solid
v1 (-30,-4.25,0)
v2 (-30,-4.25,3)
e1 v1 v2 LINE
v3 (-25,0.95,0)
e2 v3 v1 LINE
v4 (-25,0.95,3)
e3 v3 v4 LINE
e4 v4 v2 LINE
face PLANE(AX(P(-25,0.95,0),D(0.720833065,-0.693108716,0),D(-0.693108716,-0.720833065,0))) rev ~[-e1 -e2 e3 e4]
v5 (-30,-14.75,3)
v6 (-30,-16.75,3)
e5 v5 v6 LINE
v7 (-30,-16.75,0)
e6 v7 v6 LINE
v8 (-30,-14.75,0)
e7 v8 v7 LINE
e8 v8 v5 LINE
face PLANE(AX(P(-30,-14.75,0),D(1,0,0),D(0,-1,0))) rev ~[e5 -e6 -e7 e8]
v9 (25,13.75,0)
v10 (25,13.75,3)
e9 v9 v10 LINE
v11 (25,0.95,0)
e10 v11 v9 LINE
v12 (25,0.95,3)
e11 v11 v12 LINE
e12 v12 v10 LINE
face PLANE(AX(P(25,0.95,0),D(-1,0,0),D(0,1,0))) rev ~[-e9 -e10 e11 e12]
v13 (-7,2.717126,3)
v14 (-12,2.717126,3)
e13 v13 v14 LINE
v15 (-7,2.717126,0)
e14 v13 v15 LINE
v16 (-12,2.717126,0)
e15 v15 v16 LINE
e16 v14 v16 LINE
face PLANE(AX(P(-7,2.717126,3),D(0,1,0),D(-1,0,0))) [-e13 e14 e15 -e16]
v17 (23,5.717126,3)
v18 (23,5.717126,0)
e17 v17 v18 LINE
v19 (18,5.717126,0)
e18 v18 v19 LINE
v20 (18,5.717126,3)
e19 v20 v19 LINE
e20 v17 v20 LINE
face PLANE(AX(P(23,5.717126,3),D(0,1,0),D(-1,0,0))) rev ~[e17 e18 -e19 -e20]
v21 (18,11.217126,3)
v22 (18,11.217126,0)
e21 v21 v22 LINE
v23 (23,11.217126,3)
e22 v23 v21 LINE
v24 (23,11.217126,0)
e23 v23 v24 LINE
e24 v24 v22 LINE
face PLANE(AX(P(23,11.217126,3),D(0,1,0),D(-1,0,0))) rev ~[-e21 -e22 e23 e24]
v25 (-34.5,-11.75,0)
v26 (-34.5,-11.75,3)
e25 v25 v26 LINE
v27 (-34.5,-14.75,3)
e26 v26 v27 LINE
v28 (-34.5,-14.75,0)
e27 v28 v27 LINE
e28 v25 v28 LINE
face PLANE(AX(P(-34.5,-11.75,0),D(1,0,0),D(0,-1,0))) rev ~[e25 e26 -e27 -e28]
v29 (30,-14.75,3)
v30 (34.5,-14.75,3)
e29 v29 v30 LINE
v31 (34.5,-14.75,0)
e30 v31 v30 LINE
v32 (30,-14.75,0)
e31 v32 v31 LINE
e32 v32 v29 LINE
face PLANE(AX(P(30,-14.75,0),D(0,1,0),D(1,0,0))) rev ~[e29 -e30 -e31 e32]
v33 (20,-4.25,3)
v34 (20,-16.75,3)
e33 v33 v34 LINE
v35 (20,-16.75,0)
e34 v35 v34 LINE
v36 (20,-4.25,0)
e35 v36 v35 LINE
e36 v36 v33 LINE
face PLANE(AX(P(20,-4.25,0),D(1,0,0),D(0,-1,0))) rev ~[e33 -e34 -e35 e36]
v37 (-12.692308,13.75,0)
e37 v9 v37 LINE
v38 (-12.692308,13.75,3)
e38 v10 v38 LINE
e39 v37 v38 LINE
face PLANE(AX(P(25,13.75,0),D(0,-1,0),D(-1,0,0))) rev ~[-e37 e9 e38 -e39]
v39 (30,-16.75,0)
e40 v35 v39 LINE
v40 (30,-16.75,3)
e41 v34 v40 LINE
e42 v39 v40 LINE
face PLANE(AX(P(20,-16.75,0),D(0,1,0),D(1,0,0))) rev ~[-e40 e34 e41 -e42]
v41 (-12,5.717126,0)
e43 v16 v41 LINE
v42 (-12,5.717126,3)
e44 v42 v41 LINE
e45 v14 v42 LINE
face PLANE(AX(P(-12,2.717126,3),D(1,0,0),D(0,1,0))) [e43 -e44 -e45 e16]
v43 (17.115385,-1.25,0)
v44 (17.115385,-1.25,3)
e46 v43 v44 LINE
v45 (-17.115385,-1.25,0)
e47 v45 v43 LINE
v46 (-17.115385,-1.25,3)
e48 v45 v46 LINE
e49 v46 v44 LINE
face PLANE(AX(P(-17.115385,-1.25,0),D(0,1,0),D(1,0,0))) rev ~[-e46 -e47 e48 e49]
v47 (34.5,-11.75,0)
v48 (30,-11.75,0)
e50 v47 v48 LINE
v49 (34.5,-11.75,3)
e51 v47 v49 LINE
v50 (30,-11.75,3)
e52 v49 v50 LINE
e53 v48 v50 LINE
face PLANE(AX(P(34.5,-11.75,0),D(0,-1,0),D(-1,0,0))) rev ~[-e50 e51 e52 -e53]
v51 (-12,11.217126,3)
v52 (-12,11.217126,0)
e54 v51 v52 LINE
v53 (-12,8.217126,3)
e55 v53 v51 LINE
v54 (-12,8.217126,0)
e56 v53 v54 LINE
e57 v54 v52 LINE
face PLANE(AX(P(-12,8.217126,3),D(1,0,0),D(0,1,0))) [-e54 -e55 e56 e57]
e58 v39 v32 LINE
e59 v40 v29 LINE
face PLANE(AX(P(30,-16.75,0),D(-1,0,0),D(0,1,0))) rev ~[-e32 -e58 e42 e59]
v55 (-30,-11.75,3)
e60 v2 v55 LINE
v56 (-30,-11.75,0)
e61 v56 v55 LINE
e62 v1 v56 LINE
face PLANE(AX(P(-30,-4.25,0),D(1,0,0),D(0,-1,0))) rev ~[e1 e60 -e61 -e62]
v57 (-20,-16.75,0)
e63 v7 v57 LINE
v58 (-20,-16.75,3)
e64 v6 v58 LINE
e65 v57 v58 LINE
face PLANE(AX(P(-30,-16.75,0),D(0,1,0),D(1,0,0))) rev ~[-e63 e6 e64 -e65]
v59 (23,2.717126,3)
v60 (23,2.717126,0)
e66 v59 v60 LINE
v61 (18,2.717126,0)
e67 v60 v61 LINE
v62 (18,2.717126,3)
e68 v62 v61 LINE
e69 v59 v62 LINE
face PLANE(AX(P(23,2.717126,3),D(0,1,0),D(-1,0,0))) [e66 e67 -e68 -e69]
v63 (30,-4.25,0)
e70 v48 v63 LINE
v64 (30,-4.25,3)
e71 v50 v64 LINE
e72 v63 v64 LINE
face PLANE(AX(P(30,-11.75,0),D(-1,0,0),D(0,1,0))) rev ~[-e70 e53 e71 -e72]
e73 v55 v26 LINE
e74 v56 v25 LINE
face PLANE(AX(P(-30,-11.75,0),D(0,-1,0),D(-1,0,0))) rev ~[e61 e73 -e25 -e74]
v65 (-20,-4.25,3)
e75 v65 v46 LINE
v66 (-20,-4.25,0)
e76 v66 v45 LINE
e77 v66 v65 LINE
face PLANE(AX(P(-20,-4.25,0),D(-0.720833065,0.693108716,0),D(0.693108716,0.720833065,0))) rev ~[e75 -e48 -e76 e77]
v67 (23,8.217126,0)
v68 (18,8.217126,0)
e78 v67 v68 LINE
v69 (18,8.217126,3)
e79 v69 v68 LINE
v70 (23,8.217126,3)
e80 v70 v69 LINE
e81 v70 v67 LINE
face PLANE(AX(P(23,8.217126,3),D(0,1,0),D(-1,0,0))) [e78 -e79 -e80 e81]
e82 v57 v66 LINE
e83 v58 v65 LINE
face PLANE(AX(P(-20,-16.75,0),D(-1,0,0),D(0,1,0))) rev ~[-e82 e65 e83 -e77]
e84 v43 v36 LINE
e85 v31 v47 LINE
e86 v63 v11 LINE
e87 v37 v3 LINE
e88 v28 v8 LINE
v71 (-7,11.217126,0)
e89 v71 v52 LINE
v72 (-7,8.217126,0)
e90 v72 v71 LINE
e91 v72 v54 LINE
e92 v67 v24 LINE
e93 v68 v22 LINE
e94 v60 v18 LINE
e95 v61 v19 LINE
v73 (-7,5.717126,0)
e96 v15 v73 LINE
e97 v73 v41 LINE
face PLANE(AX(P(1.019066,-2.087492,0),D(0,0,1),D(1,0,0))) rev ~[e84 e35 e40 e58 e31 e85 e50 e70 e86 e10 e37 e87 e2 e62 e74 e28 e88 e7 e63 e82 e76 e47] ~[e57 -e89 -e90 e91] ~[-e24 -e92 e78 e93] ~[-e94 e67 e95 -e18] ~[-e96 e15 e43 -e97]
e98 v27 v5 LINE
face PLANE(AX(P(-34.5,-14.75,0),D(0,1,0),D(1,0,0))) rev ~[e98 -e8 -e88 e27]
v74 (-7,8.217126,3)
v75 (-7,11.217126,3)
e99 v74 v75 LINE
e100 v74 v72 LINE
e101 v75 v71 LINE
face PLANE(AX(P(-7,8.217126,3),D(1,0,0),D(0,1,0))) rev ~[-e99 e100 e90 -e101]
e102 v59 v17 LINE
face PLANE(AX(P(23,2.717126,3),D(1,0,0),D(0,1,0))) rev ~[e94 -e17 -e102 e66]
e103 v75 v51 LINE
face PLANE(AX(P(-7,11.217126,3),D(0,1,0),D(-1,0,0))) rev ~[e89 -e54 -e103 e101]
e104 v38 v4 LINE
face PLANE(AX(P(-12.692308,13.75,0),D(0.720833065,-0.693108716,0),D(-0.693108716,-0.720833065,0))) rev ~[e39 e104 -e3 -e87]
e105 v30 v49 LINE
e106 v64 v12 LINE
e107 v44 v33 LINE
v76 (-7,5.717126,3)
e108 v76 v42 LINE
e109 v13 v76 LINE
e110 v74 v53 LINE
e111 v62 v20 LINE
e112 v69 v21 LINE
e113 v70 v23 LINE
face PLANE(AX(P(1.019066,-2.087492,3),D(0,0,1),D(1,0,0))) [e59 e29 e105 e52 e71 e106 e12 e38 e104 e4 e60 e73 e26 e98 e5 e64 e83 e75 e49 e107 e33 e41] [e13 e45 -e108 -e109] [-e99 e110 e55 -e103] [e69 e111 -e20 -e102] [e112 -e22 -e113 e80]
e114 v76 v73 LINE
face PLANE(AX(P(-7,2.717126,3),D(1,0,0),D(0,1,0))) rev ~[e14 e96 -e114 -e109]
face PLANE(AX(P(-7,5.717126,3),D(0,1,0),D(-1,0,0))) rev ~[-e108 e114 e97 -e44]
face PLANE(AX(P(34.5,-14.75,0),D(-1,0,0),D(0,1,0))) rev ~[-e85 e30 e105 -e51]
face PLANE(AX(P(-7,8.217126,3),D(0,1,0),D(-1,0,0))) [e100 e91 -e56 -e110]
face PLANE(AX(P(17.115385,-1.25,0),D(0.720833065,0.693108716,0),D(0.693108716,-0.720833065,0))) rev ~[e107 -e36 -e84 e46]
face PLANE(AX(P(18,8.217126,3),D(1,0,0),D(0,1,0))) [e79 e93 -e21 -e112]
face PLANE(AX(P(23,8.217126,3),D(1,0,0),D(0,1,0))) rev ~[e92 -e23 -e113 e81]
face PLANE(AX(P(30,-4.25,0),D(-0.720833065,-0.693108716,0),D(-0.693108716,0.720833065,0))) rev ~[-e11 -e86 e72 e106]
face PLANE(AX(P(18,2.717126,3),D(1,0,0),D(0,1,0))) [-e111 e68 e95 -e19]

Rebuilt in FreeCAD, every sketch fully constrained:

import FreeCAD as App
import Part
import Sketcher

V = App.Vector


def add_polygon(sketch, points):
    """Adds a closed chain of lines whose ends are joined by coincident constraints."""
    first, n = sketch.GeometryCount, len(points)
    for a, b in zip(points, points[1:] + points[:1]):
        sketch.addGeometry(Part.LineSegment(App.Vector(*a, 0), App.Vector(*b, 0)), False)
    for i in range(n):
        sketch.addConstraint(Sketcher.Constraint("Coincident", first + i, 2, first + (i + 1) % n, 1))

doc = App.newDocument("Part")
body = doc.addObject("PartDesign::Body", "Body")

# Sketch on XY plane
sketch1 = body.newObject("Sketcher::SketchObject", "Sketch")
sketch1.AttachmentSupport = (doc.getObject("XY_Plane"), [""])
sketch1.MapMode = "FlatFace"
add_polygon(sketch1, [(30, -11.8), (30, -4.2), (25, 0.9), (25, 13.8), (-12.7, 13.8), (-25, 0.9), (-30, -4.2), (-30, -11.8), (-34.5, -11.8), (-34.5, -14.8), (-30, -14.8), (-30, -16.8), (-20, -16.8), (-20, -4.2), (-17.1, -1.2), (17.1, -1.2), (20, -4.2), (20, -16.8), (30, -16.8), (30, -14.8), (34.5, -14.8), (34.5, -11.8)])  # lines 0-21
sketch1.addConstraint([
    Sketcher.Constraint("Vertical", 0),
    Sketcher.Constraint("Vertical", 2),
    Sketcher.Constraint("Horizontal", 3),
    Sketcher.Constraint("Vertical", 6),
    Sketcher.Constraint("Horizontal", 7),
    Sketcher.Constraint("Vertical", 8),
    Sketcher.Constraint("Horizontal", 9),
    Sketcher.Constraint("Vertical", 10),
    Sketcher.Constraint("Horizontal", 11),
    Sketcher.Constraint("Vertical", 12),
    Sketcher.Constraint("Horizontal", 14),
    Sketcher.Constraint("Vertical", 16),
    Sketcher.Constraint("Horizontal", 17),
    Sketcher.Constraint("Vertical", 18),
    Sketcher.Constraint("Horizontal", 19),
    Sketcher.Constraint("Vertical", 20),
    Sketcher.Constraint("Horizontal", 21),
    Sketcher.Constraint("Symmetric", 1, 2, 4, 2, -2),
    Sketcher.Constraint("Symmetric", 0, 2, 5, 2, -2),
    Sketcher.Constraint("Symmetric", 12, 2, 15, 2, -2),
    Sketcher.Constraint("Symmetric", 10, 2, 17, 2, -2),
    Sketcher.Constraint("Symmetric", 8, 2, 19, 2, -2),
    Sketcher.Constraint("Parallel", 4, 5),
    Sketcher.Constraint("Parallel", 5, 13),
    Sketcher.Constraint("Parallel", 1, 15),
    Sketcher.Constraint("Horizontal", 5, 2, 12, 2),
    Sketcher.Constraint("Horizontal", 7, 2, 20, 2),
    Sketcher.Constraint("Vertical", 6, 2, 9, 2),
    Sketcher.Constraint("DistanceX", 11, 1, 11, 2, 10.0),
    Sketcher.Constraint("DistanceY", 8, 2, 8, 1, 3.0),
    Sketcher.Constraint("DistanceY", 10, 2, 10, 1, 2.0),
    Sketcher.Constraint("DistanceX", 7, 2, 7, 1, 4.5),
    Sketcher.Constraint("DistanceY", 0, 1, 0, 2, 7.5),
    Sketcher.Constraint("DistanceY", 2, 1, 2, 2, 12.8),
    Sketcher.Constraint("DistanceX", -1, 1, 0, 2, 30.0),
    Sketcher.Constraint("DistanceX", -1, 1, 1, 2, 25.0),
    Sketcher.Constraint("DistanceY", 0, 2, 2, 2, 18.0),
    Sketcher.Constraint("DistanceY", 12, 2, 13, 2, 3.0),
    Sketcher.Constraint("DistanceY", 0, 2, -1, 1, 4.25),
])
pad1 = body.newObject("PartDesign::Pad", "Pad")
pad1.Profile = sketch1
pad1.Length = 3

# Sketch on XY plane
sketch2 = body.newObject("Sketcher::SketchObject", "Sketch001")
sketch2.AttachmentSupport = (doc.getObject("XY_Plane"), [""])
sketch2.MapMode = "FlatFace"
sketch2.AttachmentOffset = App.Placement(V(0, 0, 3), App.Rotation())
add_polygon(sketch2, [(-7, 5.7), (-7, 2.7), (-12, 2.7), (-12, 5.7)])  # lines 0-3
add_polygon(sketch2, [(-7, 11.2), (-7, 8.2), (-12, 8.2), (-12, 11.2)])  # lines 4-7
add_polygon(sketch2, [(23, 5.7), (23, 2.7), (18, 2.7), (18, 5.7)])  # lines 8-11
add_polygon(sketch2, [(23, 11.2), (23, 8.2), (18, 8.2), (18, 11.2)])  # lines 12-15
sketch2.addConstraint([
    Sketcher.Constraint("Vertical", 0),
    Sketcher.Constraint("Horizontal", 1),
    Sketcher.Constraint("Vertical", 2),
    Sketcher.Constraint("Horizontal", 3),
    Sketcher.Constraint("Vertical", 4),
    Sketcher.Constraint("Horizontal", 5),
    Sketcher.Constraint("Vertical", 6),
    Sketcher.Constraint("Horizontal", 7),
    Sketcher.Constraint("Vertical", 8),
    Sketcher.Constraint("Horizontal", 9),
    Sketcher.Constraint("Vertical", 10),
    Sketcher.Constraint("Horizontal", 11),
    Sketcher.Constraint("Vertical", 12),
    Sketcher.Constraint("Horizontal", 13),
    Sketcher.Constraint("Vertical", 14),
    Sketcher.Constraint("Horizontal", 15),
    Sketcher.Constraint("Horizontal", 1, 2, 8, 2),
    Sketcher.Constraint("Horizontal", 3, 2, 10, 2),
    Sketcher.Constraint("Horizontal", 5, 2, 12, 2),
    Sketcher.Constraint("Horizontal", 7, 2, 14, 2),
    Sketcher.Constraint("Vertical", 3, 2, 4, 2),
    Sketcher.Constraint("Vertical", 2, 2, 5, 2),
    Sketcher.Constraint("Vertical", 11, 2, 12, 2),
    Sketcher.Constraint("Vertical", 10, 2, 13, 2),
    Sketcher.Constraint("Equal", 7, 9),
    Sketcher.Constraint("Equal", 2, 4),
    Sketcher.Constraint("DistanceX", 1, 2, 1, 1, 5.0),
    Sketcher.Constraint("DistanceY", 0, 2, 0, 1, 3.0),
    Sketcher.Constraint("DistanceX", 0, 2, -1, 1, 7.0),
    Sketcher.Constraint("DistanceX", -1, 1, 8, 2, 23.0),
    Sketcher.Constraint("DistanceY", 3, 2, 4, 2, 2.5),
    Sketcher.Constraint("DistanceY", -1, 1, 0, 2, 2.717126),
])
pocket1 = body.newObject("PartDesign::Pocket", "Pocket")
pocket1.Profile = sketch2
pocket1.Length = 3

doc.recompute()
